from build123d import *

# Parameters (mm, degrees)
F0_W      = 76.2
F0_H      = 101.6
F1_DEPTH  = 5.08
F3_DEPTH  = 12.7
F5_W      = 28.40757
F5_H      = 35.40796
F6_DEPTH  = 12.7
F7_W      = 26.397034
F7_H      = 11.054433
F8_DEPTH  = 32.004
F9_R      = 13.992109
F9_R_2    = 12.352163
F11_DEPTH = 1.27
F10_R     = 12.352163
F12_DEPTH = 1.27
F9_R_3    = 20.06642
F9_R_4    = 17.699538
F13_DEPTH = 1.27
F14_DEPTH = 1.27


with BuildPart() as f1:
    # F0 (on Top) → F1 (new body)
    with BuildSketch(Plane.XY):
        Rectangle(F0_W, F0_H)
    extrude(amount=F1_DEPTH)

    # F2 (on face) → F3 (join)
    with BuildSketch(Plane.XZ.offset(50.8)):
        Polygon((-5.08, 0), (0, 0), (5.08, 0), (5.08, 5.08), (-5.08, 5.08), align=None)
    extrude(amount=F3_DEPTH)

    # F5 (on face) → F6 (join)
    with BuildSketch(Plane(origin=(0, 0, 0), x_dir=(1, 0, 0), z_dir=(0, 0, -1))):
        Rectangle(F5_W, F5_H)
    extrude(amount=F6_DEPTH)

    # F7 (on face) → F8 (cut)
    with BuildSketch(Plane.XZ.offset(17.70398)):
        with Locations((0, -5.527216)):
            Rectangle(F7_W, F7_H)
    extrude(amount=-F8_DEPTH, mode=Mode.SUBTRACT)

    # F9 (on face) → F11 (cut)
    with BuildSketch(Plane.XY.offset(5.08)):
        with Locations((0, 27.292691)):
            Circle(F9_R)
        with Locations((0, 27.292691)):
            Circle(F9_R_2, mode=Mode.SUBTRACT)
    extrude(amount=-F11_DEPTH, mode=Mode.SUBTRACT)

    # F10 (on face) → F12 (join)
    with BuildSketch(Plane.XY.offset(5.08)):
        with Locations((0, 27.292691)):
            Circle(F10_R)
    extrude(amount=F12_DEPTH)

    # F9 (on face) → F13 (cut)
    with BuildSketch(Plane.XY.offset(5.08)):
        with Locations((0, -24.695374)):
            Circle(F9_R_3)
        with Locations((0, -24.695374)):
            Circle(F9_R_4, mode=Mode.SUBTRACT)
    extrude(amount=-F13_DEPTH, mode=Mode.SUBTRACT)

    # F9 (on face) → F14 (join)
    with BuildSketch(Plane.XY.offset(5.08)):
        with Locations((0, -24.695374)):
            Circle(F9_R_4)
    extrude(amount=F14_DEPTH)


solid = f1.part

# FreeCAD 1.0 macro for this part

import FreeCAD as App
import Part
import Sketcher
Q = App.Units.Quantity


def add_polygon(sketch, points):
    """Adds a closed chain of lines whose ends are joined by coincident constraints."""
    first, n = sketch.GeometryCount, len(points)
    for a, b in zip(points, points[1:] + points[:1]):
        sketch.addGeometry(Part.LineSegment(App.Vector(*a, 0), App.Vector(*b, 0)), False)
    for i in range(n):
        sketch.addConstraint(Sketcher.Constraint("Coincident", first + i, 2, first + (i + 1) % n, 1))

doc = App.newDocument("Part")
body = doc.addObject("PartDesign::Body", "Body")

# Sketch on XY plane
sketch1 = body.newObject("Sketcher::SketchObject", "Sketch")
sketch1.AttachmentSupport = (doc.getObject("XY_Plane"), [""])
sketch1.MapMode = "FlatFace"
add_polygon(sketch1, [(-38.1, 50.8), (-38.1, -50.8), (38.1, -50.8), (38.1, 50.8)])  # lines 0-3
sketch1.addConstraint(Sketcher.Constraint("Vertical", 0))
sketch1.addConstraint(Sketcher.Constraint("Horizontal", 1))
sketch1.addConstraint(Sketcher.Constraint("Vertical", 2))
sketch1.addConstraint(Sketcher.Constraint("Horizontal", 3))
sketch1.addConstraint(Sketcher.Constraint("Symmetric", 0, 2, 2, 2, -1, 1))
sketch1.addConstraint(Sketcher.Constraint("DistanceX", 1, 1, 1, 2, Q("3 in")))
sketch1.addConstraint(Sketcher.Constraint("DistanceY", 0, 2, 0, 1, Q("4 in")))
pad1 = body.newObject("PartDesign::Pad", "Pad")
pad1.Profile = sketch1
pad1.Length = Q("0.2 in")

# Sketch on XZ plane
sketch2 = body.newObject("Sketcher::SketchObject", "Sketch001")
sketch2.AttachmentSupport = (doc.getObject("XZ_Plane"), [""])
sketch2.MapMode = "FlatFace"
sketch2.AttachmentOffset = App.Placement(App.Vector(0, 0, 2 * 25.4), App.Rotation())
add_polygon(sketch2, [(-5.08, 0), (5.08, 0), (5.08, 5.08), (-5.08, 5.08)])  # lines 0-3
sketch2.addConstraint(Sketcher.Constraint("Horizontal", 0))
sketch2.addConstraint(Sketcher.Constraint("Vertical", 1))
sketch2.addConstraint(Sketcher.Constraint("Horizontal", 2))
sketch2.addConstraint(Sketcher.Constraint("Vertical", 3))
sketch2.addConstraint(Sketcher.Constraint("Symmetric", 0, 2, 3, 2, -1, 1))
sketch2.addConstraint(Sketcher.Constraint("DistanceX", 0, 1, 0, 2, Q("0.4 in")))
sketch2.addConstraint(Sketcher.Constraint("DistanceY", 1, 1, 1, 2, Q("0.2 in")))
pad2 = body.newObject("PartDesign::Pad", "Pad001")
pad2.Profile = sketch2
pad2.Length = Q("0.5 in")

# Sketch on XY plane
sketch3 = body.newObject("Sketcher::SketchObject", "Sketch002")
sketch3.AttachmentSupport = (doc.getObject("XY_Plane"), [""])
sketch3.MapMode = "FlatFace"
add_polygon(sketch3, [(-14.203785, -17.70398), (-14.203785, 17.70398), (14.203785, 17.70398), (14.203785, -17.70398)])  # lines 0-3
sketch3.addConstraint(Sketcher.Constraint("Vertical", 0))
sketch3.addConstraint(Sketcher.Constraint("Horizontal", 1))
sketch3.addConstraint(Sketcher.Constraint("Vertical", 2))
sketch3.addConstraint(Sketcher.Constraint("Horizontal", 3))
sketch3.addConstraint(Sketcher.Constraint("Symmetric", 0, 2, 2, 2, -1, 1))
sketch3.addConstraint(Sketcher.Constraint("DistanceX", 1, 1, 1, 2, 28.40757))
sketch3.addConstraint(Sketcher.Constraint("DistanceY", 0, 1, 0, 2, 35.40796))
pad3 = body.newObject("PartDesign::Pad", "Pad002")
pad3.Profile = sketch3
pad3.Length = Q("0.5 in")
pad3.Reversed = True

# Sketch on XZ plane
sketch4 = body.newObject("Sketcher::SketchObject", "Sketch003")
sketch4.AttachmentSupport = (doc.getObject("XZ_Plane"), [""])
sketch4.MapMode = "FlatFace"
sketch4.AttachmentOffset = App.Placement(App.Vector(0, 0, 17.70398), App.Rotation())
add_polygon(sketch4, [(-13.198517, 0), (-13.198517, -11.054433), (13.198517, -11.054433), (13.198517, 0)])  # lines 0-3
sketch4.addConstraint(Sketcher.Constraint("Vertical", 0))
sketch4.addConstraint(Sketcher.Constraint("Horizontal", 1))
sketch4.addConstraint(Sketcher.Constraint("Vertical", 2))
sketch4.addConstraint(Sketcher.Constraint("Horizontal", 3))
sketch4.addConstraint(Sketcher.Constraint("Symmetric", 2, 2, 3, 2, -1, 1))
sketch4.addConstraint(Sketcher.Constraint("DistanceX", 1, 1, 1, 2, 26.397034))
sketch4.addConstraint(Sketcher.Constraint("DistanceY", 0, 2, 0, 1, 11.054433))
pocket1 = body.newObject("PartDesign::Pocket", "Pocket")
pocket1.Profile = sketch4
pocket1.Length = Q("1.26 in")

# Sketch on XY plane
sketch5 = body.newObject("Sketcher::SketchObject", "Sketch004")
sketch5.AttachmentSupport = (doc.getObject("XY_Plane"), [""])
sketch5.MapMode = "FlatFace"
sketch5.AttachmentOffset = App.Placement(App.Vector(0, 0, 0.2 * 25.4), App.Rotation())
sketch5.addGeometry(Part.Circle(App.Vector(0, 27.292691, 0), App.Vector(0, 0, 1), 13.992109), False)
sketch5.addGeometry(Part.Circle(App.Vector(0, 27.292691, 0), App.Vector(0, 0, 1), 12.352163), False)
sketch5.addConstraint(Sketcher.Constraint("Coincident", 1, 3, 0, 3))
sketch5.addConstraint(Sketcher.Constraint("PointOnObject", 0, 3, -2))
sketch5.addConstraint(Sketcher.Constraint("Diameter", 0, 27.984218))
sketch5.addConstraint(Sketcher.Constraint("Diameter", 1, 24.704326))
sketch5.addConstraint(Sketcher.Constraint("DistanceY", -1, 1, 0, 3, 27.292691))
pocket2 = body.newObject("PartDesign::Pocket", "Pocket001")
pocket2.Profile = sketch5
pocket2.Length = Q("0.05 in")

# Sketch on XY plane
sketch6 = body.newObject("Sketcher::SketchObject", "Sketch005")
sketch6.AttachmentSupport = (doc.getObject("XY_Plane"), [""])
sketch6.MapMode = "FlatFace"
sketch6.AttachmentOffset = App.Placement(App.Vector(0, 0, 0.2 * 25.4), App.Rotation())
sketch6.addGeometry(Part.Circle(App.Vector(0, 27.292691, 0), App.Vector(0, 0, 1), 12.352163), False)
sketch6.addConstraint(Sketcher.Constraint("PointOnObject", 0, 3, -2))
sketch6.addConstraint(Sketcher.Constraint("Diameter", 0, 24.704326))
sketch6.addConstraint(Sketcher.Constraint("DistanceY", -1, 1, 0, 3, 27.292691))
pad4 = body.newObject("PartDesign::Pad", "Pad003")
pad4.Profile = sketch6
pad4.Length = Q("0.05 in")

# Sketch on XY plane
sketch7 = body.newObject("Sketcher::SketchObject", "Sketch006")
sketch7.AttachmentSupport = (doc.getObject("XY_Plane"), [""])
sketch7.MapMode = "FlatFace"
sketch7.AttachmentOffset = App.Placement(App.Vector(0, 0, 0.2 * 25.4), App.Rotation())
sketch7.addGeometry(Part.Circle(App.Vector(0, -24.695374, 0), App.Vector(0, 0, 1), 20.06642), False)
sketch7.addGeometry(Part.Circle(App.Vector(0, -24.695374, 0), App.Vector(0, 0, 1), 17.699538), False)
sketch7.addConstraint(Sketcher.Constraint("Coincident", 1, 3, 0, 3))
sketch7.addConstraint(Sketcher.Constraint("PointOnObject", 0, 3, -2))
sketch7.addConstraint(Sketcher.Constraint("Diameter", 0, 40.13284))
sketch7.addConstraint(Sketcher.Constraint("Diameter", 1, 35.399076))
sketch7.addConstraint(Sketcher.Constraint("DistanceY", 0, 3, -1, 1, 24.695374))
pocket3 = body.newObject("PartDesign::Pocket", "Pocket002")
pocket3.Profile = sketch7
pocket3.Length = Q("0.05 in")

# Sketch on XY plane
sketch8 = body.newObject("Sketcher::SketchObject", "Sketch007")
sketch8.AttachmentSupport = (doc.getObject("XY_Plane"), [""])
sketch8.MapMode = "FlatFace"
sketch8.AttachmentOffset = App.Placement(App.Vector(0, 0, 0.2 * 25.4), App.Rotation())
sketch8.addGeometry(Part.Circle(App.Vector(0, -24.695374, 0), App.Vector(0, 0, 1), 17.699538), False)
sketch8.addConstraint(Sketcher.Constraint("PointOnObject", 0, 3, -2))
sketch8.addConstraint(Sketcher.Constraint("Diameter", 0, 35.399076))
sketch8.addConstraint(Sketcher.Constraint("DistanceY", 0, 3, -1, 1, 24.695374))
pad5 = body.newObject("PartDesign::Pad", "Pad004")
pad5.Profile = sketch8
pad5.Length = Q("0.05 in")

doc.recompute()
